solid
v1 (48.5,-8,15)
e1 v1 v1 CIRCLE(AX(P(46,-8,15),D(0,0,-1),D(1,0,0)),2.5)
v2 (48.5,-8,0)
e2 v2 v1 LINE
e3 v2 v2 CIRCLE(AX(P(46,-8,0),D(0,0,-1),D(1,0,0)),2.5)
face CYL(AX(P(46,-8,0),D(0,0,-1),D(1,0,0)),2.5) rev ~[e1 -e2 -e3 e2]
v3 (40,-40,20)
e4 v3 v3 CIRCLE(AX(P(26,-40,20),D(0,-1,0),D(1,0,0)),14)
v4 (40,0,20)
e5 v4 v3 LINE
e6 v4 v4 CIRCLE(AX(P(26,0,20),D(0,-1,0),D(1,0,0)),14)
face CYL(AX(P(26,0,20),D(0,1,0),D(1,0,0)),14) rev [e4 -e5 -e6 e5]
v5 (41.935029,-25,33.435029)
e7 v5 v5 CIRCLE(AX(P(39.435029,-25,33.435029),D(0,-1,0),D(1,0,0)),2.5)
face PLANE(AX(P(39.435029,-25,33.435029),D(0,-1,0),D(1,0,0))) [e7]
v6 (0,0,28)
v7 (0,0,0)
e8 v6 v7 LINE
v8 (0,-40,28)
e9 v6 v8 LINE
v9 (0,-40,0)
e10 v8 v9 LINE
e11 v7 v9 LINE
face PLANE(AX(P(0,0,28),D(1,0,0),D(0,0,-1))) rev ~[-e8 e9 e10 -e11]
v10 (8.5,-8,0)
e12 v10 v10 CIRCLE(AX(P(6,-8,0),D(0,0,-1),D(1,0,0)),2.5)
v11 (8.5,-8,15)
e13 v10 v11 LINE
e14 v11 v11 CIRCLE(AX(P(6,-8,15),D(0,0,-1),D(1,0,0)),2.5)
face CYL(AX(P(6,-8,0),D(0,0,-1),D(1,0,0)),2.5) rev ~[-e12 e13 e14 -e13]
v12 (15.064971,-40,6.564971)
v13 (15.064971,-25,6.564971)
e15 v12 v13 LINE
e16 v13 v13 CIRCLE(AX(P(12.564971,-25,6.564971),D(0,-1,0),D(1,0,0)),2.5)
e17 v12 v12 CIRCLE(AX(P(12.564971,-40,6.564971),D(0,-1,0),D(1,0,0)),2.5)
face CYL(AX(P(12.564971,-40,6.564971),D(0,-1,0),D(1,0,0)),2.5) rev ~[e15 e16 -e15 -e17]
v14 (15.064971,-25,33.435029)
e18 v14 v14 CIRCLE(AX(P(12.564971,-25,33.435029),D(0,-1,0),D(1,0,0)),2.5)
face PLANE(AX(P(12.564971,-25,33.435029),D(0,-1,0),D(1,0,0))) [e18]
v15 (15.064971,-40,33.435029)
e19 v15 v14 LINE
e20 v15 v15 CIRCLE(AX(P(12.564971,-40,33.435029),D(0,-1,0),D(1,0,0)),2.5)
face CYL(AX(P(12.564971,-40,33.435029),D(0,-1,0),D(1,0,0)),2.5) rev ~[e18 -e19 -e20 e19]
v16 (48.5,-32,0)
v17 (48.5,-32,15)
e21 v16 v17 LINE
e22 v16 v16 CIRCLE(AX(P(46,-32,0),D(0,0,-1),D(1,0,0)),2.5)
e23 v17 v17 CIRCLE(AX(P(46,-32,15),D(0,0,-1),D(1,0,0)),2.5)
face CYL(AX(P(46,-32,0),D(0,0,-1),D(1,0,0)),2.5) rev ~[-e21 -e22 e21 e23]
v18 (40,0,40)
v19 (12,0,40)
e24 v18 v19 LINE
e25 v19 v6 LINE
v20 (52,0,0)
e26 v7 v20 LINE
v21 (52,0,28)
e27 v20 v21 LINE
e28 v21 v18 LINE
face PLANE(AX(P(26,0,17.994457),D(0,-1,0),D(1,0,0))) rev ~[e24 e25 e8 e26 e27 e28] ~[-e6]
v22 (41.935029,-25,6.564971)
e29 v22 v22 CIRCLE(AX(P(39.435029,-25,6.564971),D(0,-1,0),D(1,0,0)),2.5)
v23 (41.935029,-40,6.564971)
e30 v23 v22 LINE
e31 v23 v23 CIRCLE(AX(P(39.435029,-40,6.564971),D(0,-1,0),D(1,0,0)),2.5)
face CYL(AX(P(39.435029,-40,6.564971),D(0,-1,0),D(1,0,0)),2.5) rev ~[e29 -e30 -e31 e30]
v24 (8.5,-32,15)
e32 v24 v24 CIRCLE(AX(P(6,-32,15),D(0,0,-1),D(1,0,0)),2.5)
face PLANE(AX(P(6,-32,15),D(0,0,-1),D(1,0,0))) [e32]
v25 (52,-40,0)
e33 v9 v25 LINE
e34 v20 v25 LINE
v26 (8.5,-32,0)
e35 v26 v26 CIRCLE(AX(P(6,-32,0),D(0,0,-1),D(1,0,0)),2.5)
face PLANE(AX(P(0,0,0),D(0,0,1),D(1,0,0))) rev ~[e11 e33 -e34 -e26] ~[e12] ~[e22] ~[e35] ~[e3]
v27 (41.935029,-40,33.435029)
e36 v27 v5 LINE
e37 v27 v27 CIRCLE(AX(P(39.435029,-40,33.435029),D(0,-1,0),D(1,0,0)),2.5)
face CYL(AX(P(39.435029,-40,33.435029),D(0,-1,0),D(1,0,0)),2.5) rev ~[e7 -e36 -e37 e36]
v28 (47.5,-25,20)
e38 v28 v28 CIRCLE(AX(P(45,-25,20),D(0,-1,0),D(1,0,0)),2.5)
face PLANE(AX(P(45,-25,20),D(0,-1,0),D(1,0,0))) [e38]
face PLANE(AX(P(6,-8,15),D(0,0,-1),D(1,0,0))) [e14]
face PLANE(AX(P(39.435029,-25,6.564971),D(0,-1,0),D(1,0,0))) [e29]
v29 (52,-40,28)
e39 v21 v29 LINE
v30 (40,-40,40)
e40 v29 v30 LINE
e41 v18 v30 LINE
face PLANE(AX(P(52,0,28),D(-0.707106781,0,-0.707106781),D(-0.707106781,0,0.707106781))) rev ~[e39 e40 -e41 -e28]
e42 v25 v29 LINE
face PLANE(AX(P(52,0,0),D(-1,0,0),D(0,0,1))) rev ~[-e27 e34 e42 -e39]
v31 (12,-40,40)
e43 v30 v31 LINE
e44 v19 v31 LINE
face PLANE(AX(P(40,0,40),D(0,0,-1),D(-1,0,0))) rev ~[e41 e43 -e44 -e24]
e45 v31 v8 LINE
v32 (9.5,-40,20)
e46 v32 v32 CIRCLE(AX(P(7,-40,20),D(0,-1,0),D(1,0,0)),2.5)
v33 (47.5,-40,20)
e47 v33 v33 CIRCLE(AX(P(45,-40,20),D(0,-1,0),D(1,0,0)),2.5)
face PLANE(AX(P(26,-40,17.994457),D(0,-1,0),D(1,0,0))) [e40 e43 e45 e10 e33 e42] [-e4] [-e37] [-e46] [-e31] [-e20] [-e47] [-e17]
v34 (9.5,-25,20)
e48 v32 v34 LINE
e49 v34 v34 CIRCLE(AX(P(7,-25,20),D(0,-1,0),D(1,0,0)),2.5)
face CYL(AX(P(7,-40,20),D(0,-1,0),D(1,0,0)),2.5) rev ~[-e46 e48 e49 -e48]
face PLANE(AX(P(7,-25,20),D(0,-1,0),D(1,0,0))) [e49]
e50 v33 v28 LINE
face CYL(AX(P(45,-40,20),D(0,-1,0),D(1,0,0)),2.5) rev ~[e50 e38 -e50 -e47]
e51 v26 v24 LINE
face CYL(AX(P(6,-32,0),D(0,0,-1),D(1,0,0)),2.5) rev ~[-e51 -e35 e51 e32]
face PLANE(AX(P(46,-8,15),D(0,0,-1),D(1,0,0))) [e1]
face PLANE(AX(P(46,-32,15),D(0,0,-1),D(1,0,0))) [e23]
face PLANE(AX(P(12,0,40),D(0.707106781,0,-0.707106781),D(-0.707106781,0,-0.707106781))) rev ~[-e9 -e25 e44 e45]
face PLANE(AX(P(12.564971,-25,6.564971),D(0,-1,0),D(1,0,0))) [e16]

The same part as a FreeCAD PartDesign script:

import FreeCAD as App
import Part
import Sketcher
Q = App.Units.Quantity


def add_polygon(sketch, points):
    """Adds a closed chain of lines whose ends are joined by coincident constraints."""
    first, n = sketch.GeometryCount, len(points)
    for a, b in zip(points, points[1:] + points[:1]):
        sketch.addGeometry(Part.LineSegment(App.Vector(*a, 0), App.Vector(*b, 0)), False)
    for i in range(n):
        sketch.addConstraint(Sketcher.Constraint("Coincident", first + i, 2, first + (i + 1) % n, 1))

doc = App.newDocument("Part")
body = doc.addObject("PartDesign::Body", "Body")

sketch1 = body.newObject("Sketcher::SketchObject", "Sketch")
sketch1.AttachmentSupport = (doc.getObject("XZ_Plane"), [""])
sketch1.MapMode = "FlatFace"
add_polygon(sketch1, [(0, 28), (0, 0), (52, 0), (52, 28), (40, 40), (12, 40)])
sketch1.addGeometry(Part.Circle(App.Vector(26, 20, 0), App.Vector(0, 0, 1), 14), False)
sketch1.addConstraint(Sketcher.Constraint("Vertical", 0))
sketch1.addConstraint(Sketcher.Constraint("Horizontal", 1))
sketch1.addConstraint(Sketcher.Constraint("Vertical", 2))
sketch1.addConstraint(Sketcher.Constraint("Horizontal", 4))
sketch1.addConstraint(Sketcher.Constraint("Coincident", 0, 2, -1, 1))
sketch1.addConstraint(Sketcher.Constraint("Perpendicular", 3, 5))
sketch1.addConstraint(Sketcher.Constraint("Horizontal", 2, 2, 5, 2))
sketch1.addConstraint(Sketcher.Constraint("Equal", 4, 0))
sketch1.addConstraint(Sketcher.Constraint("Equal", 3, 5))
sketch1.addConstraint(Sketcher.Constraint("Diameter", 6, Q("28 mm")))
sketch1.addConstraint(Sketcher.Constraint("DistanceX", 1, 1, 1, 2, Q("52 mm")))
sketch1.addConstraint(Sketcher.Constraint("DistanceX", 4, 2, 4, 1, Q("28 mm")))
sketch1.addConstraint(Sketcher.Constraint("DistanceX", -1, 1, 6, 3, Q("26 mm")))
sketch1.addConstraint(Sketcher.Constraint("DistanceY", -1, 1, 6, 3, Q("20 mm")))
pad1 = body.newObject("PartDesign::Pad", "Pad")
pad1.Profile = sketch1
pad1.Length = 40

sketch2 = body.newObject("Sketcher::SketchObject", "Sketch001")
sketch2.AttachmentSupport = (doc.getObject("XZ_Plane"), [""])
sketch2.MapMode = "FlatFace"
sketch2.AttachmentOffset = App.Placement(App.Vector(0, 0, 40), App.Rotation())
sketch2.addGeometry(Part.Circle(App.Vector(39.4, 33.4, 0), App.Vector(0, 0, 1), 2.5), False)
sketch2.addGeometry(Part.Circle(App.Vector(45, 20, 0), App.Vector(0, 0, 1), 2.5), False)
sketch2.addGeometry(Part.Circle(App.Vector(39.4, 6.6, 0), App.Vector(0, 0, 1), 2.5), False)
sketch2.addGeometry(Part.Circle(App.Vector(12.6, 6.6, 0), App.Vector(0, 0, 1), 2.5), False)
sketch2.addGeometry(Part.Circle(App.Vector(7, 20, 0), App.Vector(0, 0, 1), 2.5), False)
sketch2.addGeometry(Part.Circle(App.Vector(12.6, 33.4, 0), App.Vector(0, 0, 1), 2.5), False)
sketch2.addConstraint(Sketcher.Constraint("Equal", 0, 1))
sketch2.addConstraint(Sketcher.Constraint("Equal", 1, 2))
sketch2.addConstraint(Sketcher.Constraint("Equal", 2, 3))
sketch2.addConstraint(Sketcher.Constraint("Equal", 3, 4))
sketch2.addConstraint(Sketcher.Constraint("Equal", 4, 5))
sketch2.addConstraint(Sketcher.Constraint("Horizontal", 2, 3, 3, 3))
sketch2.addConstraint(Sketcher.Constraint("Horizontal", 1, 3, 4, 3))
sketch2.addConstraint(Sketcher.Constraint("Horizontal", 0, 3, 5, 3))
sketch2.addConstraint(Sketcher.Constraint("Vertical", 0, 3, 2, 3))
sketch2.addConstraint(Sketcher.Constraint("Vertical", 3, 3, 5, 3))
sketch2.addConstraint(Sketcher.Constraint("Diameter", 0, Q("5 mm")))
sketch2.addConstraint(Sketcher.Constraint("DistanceX", -1, 1, 1, 3, Q("45 mm")))
sketch2.addConstraint(Sketcher.Constraint("DistanceY", -1, 1, 1, 3, Q("20 mm")))
sketch2.addConstraint(Sketcher.Constraint("DistanceX", -1, 1, 4, 3, Q("7 mm")))
sketch2.addConstraint(Sketcher.Constraint("DistanceX", -1, 1, 0, 3, Q("39.435029 mm")))
sketch2.addConstraint(Sketcher.Constraint("DistanceY", -1, 1, 0, 3, Q("33.435029 mm")))
sketch2.addConstraint(Sketcher.Constraint("DistanceY", -1, 1, 2, 3, Q("6.564971 mm")))
sketch2.addConstraint(Sketcher.Constraint("DistanceX", -1, 1, 3, 3, Q("12.564971 mm")))
pocket1 = body.newObject("PartDesign::Pocket", "Pocket")
pocket1.Profile = sketch2
pocket1.Length = 15

sketch3 = body.newObject("Sketcher::SketchObject", "Sketch002")
sketch3.AttachmentSupport = (doc.getObject("XY_Plane"), [""])
sketch3.MapMode = "FlatFace"
sketch3.addGeometry(Part.Circle(App.Vector(46, -32, 0), App.Vector(0, 0, 1), 2.5), False)
sketch3.addGeometry(Part.Circle(App.Vector(46, -8, 0), App.Vector(0, 0, 1), 2.5), False)
sketch3.addGeometry(Part.Circle(App.Vector(6, -8, 0), App.Vector(0, 0, 1), 2.5), False)
sketch3.addGeometry(Part.Circle(App.Vector(6, -32, 0), App.Vector(0, 0, 1), 2.5), False)
sketch3.addConstraint(Sketcher.Constraint("Equal", 0, 1))
sketch3.addConstraint(Sketcher.Constraint("Equal", 1, 2))
sketch3.addConstraint(Sketcher.Constraint("Equal", 2, 3))
sketch3.addConstraint(Sketcher.Constraint("Horizontal", 1, 3, 2, 3))
sketch3.addConstraint(Sketcher.Constraint("Horizontal", 0, 3, 3, 3))
sketch3.addConstraint(Sketcher.Constraint("Vertical", 0, 3, 1, 3))
sketch3.addConstraint(Sketcher.Constraint("Vertical", 2, 3, 3, 3))
sketch3.addConstraint(Sketcher.Constraint("Diameter", 0, Q("5 mm")))
sketch3.addConstraint(Sketcher.Constraint("DistanceX", -1, 1, 0, 3, Q("46 mm")))
sketch3.addConstraint(Sketcher.Constraint("DistanceY", 0, 3, -1, 1, Q("32 mm")))
sketch3.addConstraint(Sketcher.Constraint("DistanceY", 1, 3, -1, 1, Q("8 mm")))
sketch3.addConstraint(Sketcher.Constraint("DistanceX", -1, 1, 2, 3, Q("6 mm")))
pocket2 = body.newObject("PartDesign::Pocket", "Pocket001")
pocket2.Profile = sketch3
pocket2.Length = 15
pocket2.Reversed = True

doc.recompute()
